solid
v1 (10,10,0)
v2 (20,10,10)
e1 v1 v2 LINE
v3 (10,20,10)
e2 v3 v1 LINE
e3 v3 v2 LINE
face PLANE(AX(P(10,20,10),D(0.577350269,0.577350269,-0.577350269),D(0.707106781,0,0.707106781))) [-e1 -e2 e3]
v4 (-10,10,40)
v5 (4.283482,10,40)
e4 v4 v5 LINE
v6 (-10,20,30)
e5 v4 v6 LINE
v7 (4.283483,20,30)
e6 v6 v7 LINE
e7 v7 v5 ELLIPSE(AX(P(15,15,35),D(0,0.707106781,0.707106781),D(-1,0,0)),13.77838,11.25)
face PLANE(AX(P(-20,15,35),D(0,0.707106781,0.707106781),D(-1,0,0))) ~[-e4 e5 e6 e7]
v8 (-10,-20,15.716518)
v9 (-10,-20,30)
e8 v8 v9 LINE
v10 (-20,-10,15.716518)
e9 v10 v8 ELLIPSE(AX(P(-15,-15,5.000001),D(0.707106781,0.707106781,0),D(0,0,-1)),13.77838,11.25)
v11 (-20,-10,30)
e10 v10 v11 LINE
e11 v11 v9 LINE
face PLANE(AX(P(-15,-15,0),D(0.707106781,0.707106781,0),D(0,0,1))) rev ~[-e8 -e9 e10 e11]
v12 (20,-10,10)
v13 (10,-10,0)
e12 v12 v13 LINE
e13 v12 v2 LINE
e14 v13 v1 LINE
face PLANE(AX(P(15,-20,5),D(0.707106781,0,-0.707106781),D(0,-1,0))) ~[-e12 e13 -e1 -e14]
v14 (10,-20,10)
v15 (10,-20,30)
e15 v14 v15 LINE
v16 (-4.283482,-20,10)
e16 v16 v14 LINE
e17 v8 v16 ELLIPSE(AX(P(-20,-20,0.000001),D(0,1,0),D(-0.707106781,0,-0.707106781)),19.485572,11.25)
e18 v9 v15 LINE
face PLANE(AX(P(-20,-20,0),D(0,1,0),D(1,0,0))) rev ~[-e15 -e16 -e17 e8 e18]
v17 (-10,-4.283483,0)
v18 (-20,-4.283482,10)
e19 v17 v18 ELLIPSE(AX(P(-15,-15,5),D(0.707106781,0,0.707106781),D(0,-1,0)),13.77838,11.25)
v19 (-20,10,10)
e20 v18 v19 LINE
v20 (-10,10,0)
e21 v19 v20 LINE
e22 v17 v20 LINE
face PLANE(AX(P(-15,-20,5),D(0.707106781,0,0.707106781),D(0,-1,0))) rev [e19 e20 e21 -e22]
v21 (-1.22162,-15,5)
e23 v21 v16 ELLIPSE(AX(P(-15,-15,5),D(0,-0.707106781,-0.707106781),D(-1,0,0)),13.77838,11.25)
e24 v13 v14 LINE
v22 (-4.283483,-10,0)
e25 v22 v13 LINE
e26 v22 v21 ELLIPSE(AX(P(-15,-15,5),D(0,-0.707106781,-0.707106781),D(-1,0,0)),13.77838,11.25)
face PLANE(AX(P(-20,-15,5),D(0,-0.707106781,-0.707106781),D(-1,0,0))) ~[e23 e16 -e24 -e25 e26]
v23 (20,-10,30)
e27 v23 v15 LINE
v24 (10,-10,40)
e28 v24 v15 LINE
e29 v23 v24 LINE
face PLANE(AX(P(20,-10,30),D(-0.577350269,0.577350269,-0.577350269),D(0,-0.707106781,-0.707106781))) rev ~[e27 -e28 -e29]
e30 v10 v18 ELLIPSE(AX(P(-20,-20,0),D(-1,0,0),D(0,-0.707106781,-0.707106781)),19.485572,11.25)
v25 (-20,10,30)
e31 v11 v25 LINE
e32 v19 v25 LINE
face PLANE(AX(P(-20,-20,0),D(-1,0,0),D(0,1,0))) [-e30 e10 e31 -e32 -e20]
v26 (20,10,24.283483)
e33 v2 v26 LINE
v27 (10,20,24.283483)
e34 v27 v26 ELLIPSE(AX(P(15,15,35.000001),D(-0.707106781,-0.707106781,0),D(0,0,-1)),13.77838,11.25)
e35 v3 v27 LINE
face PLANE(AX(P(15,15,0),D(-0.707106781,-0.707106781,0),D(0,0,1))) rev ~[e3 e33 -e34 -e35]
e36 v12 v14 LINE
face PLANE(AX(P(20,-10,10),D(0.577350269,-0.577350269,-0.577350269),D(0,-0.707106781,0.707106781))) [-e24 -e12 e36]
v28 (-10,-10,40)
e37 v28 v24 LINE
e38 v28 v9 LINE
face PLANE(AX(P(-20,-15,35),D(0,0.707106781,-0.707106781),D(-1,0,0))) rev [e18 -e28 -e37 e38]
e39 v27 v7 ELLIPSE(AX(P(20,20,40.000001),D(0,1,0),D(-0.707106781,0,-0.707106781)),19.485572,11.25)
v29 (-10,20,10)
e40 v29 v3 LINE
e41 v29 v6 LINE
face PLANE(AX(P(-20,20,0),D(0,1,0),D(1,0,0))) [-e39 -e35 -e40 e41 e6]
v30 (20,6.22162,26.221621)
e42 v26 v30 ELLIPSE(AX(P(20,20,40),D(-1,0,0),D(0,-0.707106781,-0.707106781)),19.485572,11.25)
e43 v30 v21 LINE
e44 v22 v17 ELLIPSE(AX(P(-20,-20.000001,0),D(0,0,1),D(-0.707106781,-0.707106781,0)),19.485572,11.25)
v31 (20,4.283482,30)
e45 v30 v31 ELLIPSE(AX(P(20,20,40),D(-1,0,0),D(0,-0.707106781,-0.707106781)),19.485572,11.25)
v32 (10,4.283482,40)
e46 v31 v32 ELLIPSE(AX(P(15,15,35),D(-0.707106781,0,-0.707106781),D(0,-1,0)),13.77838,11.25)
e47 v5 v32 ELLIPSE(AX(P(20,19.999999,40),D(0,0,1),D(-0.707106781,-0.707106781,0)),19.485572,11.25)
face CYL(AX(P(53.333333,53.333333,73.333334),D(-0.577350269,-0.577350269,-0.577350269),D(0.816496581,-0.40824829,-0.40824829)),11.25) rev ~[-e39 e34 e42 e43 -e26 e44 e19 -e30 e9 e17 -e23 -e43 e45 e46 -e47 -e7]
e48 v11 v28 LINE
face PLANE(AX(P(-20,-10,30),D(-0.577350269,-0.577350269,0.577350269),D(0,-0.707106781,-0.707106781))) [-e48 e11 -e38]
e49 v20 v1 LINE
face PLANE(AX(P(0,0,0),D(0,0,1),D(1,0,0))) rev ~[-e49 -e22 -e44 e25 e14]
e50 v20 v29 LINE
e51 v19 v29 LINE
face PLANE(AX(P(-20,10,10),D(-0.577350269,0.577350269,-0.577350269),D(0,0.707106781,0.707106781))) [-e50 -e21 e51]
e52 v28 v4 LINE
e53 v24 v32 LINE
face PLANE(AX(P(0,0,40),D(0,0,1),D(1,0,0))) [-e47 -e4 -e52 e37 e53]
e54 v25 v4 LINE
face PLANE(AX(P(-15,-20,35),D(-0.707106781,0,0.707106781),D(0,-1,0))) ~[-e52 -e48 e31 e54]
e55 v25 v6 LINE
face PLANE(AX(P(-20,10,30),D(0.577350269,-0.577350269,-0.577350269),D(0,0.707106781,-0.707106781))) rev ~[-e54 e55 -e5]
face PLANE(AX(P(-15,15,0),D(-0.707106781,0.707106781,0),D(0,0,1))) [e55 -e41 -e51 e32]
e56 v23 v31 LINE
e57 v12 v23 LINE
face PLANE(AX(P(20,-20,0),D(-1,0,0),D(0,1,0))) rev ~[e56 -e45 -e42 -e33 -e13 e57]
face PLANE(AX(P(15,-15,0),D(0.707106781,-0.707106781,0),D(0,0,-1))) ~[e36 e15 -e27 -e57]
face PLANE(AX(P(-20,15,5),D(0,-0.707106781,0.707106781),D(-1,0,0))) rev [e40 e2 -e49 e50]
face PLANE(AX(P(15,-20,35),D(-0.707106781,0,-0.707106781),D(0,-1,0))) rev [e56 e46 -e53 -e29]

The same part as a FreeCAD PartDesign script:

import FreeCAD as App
import Part
import Sketcher

V = App.Vector
Q = App.Units.Quantity

doc = App.newDocument("Part")
body = doc.addObject("PartDesign::Body", "Body")

sketch1 = body.newObject("Sketcher::SketchObject", "Sketch")
sketch1.AttachmentSupport = (doc.getObject("XY_Plane"), [""])
sketch1.MapMode = "FlatFace"
sketch1.addGeometry([
    Part.LineSegment(V(-20, 20, 0), V(-20, -20, 0)),
    Part.LineSegment(V(-20, -20, 0), V(20, -20, 0)),
    Part.LineSegment(V(20, -20, 0), V(20, 20, 0)),
    Part.LineSegment(V(20, 20, 0), V(-20, 20, 0)),
], False)
sketch1.addConstraint([
    Sketcher.Constraint("Coincident", 0, 2, 1, 1),
    Sketcher.Constraint("Coincident", 1, 2, 2, 1),
    Sketcher.Constraint("Coincident", 2, 2, 3, 1),
    Sketcher.Constraint("Coincident", 3, 2, 0, 1),
    Sketcher.Constraint("Vertical", 0),
    Sketcher.Constraint("Horizontal", 1),
    Sketcher.Constraint("Vertical", 2),
    Sketcher.Constraint("Horizontal", 3),
    Sketcher.Constraint("Symmetric", 0, 2, 2, 2, -1, 1),
    Sketcher.Constraint("Equal", 3, 0),
    Sketcher.Constraint("DistanceX", 1, 1, 1, 2, Q("40 mm")),
])
pad1 = body.newObject("PartDesign::Pad", "Pad")
pad1.Profile = sketch1
pad1.Length = 40
doc.recompute()

chamfer = body.newObject("PartDesign::Chamfer", "Chamfer")
chamfer.Base = (pad1, ["Edge1"])
chamfer.UseAllEdges = True
chamfer.Size = 10

sketch2 = body.newObject("Sketcher::SketchObject", "Sketch001")
sketch2.Placement = App.Placement(V(20, 20, 20), App.Rotation(V(-0.816496581, 0.40824829, 0.40824829), V(0, -0.707106781, 0.707106781), V(0.577350269, 0.577350269, 0.577350269), "ZXY"))
sketch2.addGeometry(Part.Circle(V(8, 14, 0), V(0, 0, 1), 11), False)
sketch2.addConstraint([
    Sketcher.Constraint("Diameter", 0, Q("22.5 mm")),
    Sketcher.Constraint("DistanceX", -1, 1, 0, 3, Q("8.164966 mm")),
    Sketcher.Constraint("DistanceY", -1, 1, 0, 3, Q("14.142136 mm")),
])
doc.recompute()
hole = body.newObject("PartDesign::Hole", "Hole")
hole.Profile = sketch2
hole.ThreadType = "None"
hole.Diameter = 22.5
hole.DepthType = "ThroughAll"

doc.recompute()
